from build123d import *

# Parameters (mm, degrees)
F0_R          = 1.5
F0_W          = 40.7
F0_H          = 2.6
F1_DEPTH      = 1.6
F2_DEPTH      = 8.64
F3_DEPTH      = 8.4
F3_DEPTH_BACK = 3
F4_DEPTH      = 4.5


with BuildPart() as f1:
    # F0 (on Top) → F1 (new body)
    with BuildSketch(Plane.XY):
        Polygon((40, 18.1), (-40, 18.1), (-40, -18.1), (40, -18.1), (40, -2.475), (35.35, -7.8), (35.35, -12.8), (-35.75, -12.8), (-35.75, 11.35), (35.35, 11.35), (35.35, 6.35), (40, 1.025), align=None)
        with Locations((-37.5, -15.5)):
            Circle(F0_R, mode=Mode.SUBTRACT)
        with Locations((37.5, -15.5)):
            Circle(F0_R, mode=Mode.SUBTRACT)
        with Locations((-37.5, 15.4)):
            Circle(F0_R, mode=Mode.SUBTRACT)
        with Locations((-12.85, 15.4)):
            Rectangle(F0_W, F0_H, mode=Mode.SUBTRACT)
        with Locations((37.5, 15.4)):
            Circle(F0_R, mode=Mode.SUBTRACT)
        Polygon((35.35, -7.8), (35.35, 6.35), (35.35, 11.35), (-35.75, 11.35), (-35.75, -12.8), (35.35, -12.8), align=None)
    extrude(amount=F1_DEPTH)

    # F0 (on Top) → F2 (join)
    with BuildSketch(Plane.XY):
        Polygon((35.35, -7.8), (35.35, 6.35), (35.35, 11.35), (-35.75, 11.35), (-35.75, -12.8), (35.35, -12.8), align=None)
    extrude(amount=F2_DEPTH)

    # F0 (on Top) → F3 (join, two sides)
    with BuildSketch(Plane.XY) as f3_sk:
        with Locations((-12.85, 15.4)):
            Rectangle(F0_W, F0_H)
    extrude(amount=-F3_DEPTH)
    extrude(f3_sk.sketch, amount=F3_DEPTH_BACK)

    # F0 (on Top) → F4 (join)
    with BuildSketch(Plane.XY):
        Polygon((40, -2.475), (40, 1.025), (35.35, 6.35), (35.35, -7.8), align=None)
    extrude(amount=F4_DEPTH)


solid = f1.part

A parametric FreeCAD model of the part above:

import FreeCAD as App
import Part
import Sketcher

V = App.Vector
Q = App.Units.Quantity

doc = App.newDocument("Part")
body = doc.addObject("PartDesign::Body", "Body")

# Sketch on XY plane
sketch1 = body.newObject("Sketcher::SketchObject", "Sketch")
sketch1.AttachmentSupport = (doc.getObject("XY_Plane"), [""])
sketch1.MapMode = "FlatFace"
sketch1.addGeometry(Part.LineSegment(V(40, 18.1, 0), V(-40, 18.1, 0)), False)
sketch1.addGeometry(Part.LineSegment(V(-40, 18.1, 0), V(-40, -18.1, 0)), False)
sketch1.addGeometry(Part.LineSegment(V(-40, -18.1, 0), V(40, -18.1, 0)), False)
sketch1.addGeometry(Part.LineSegment(V(40, -18.1, 0), V(40, -2.475, 0)), False)
sketch1.addGeometry(Part.LineSegment(V(40, -2.475, 0), V(35.35, -7.8, 0)), False)
sketch1.addGeometry(Part.LineSegment(V(35.35, -7.8, 0), V(35.35, 6.35, 0)), False)
sketch1.addGeometry(Part.LineSegment(V(35.35, 6.35, 0), V(40, 1.025, 0)), False)
sketch1.addGeometry(Part.LineSegment(V(40, 1.025, 0), V(40, 18.1, 0)), False)
sketch1.addGeometry(Part.Circle(V(-37.5, -15.5, 0), V(0, 0, 1), 1.5), False)
sketch1.addGeometry(Part.Circle(V(37.5, -15.5, 0), V(0, 0, 1), 1.5), False)
sketch1.addGeometry(Part.Circle(V(-37.5, 15.4, 0), V(0, 0, 1), 1.5), False)
sketch1.addGeometry(Part.LineSegment(V(7.5, 14.1, 0), V(-33.2, 14.1, 0)), False)
sketch1.addGeometry(Part.LineSegment(V(-33.2, 14.1, 0), V(-33.2, 16.7, 0)), False)
sketch1.addGeometry(Part.LineSegment(V(-33.2, 16.7, 0), V(7.5, 16.7, 0)), False)
sketch1.addGeometry(Part.LineSegment(V(7.5, 16.7, 0), V(7.5, 14.1, 0)), False)
sketch1.addGeometry(Part.Circle(V(37.5, 15.4, 0), V(0, 0, 1), 1.5), False)
sketch1.addConstraint(Sketcher.Constraint("Coincident", 0, 2, 1, 1))
sketch1.addConstraint(Sketcher.Constraint("Coincident", 1, 2, 2, 1))
sketch1.addConstraint(Sketcher.Constraint("Coincident", 2, 2, 3, 1))
sketch1.addConstraint(Sketcher.Constraint("Coincident", 3, 2, 4, 1))
sketch1.addConstraint(Sketcher.Constraint("Coincident", 4, 2, 5, 1))
sketch1.addConstraint(Sketcher.Constraint("Coincident", 5, 2, 6, 1))
sketch1.addConstraint(Sketcher.Constraint("Coincident", 6, 2, 7, 1))
sketch1.addConstraint(Sketcher.Constraint("Coincident", 7, 2, 0, 1))
sketch1.addConstraint(Sketcher.Constraint("Coincident", 11, 2, 12, 1))
sketch1.addConstraint(Sketcher.Constraint("Coincident", 12, 2, 13, 1))
sketch1.addConstraint(Sketcher.Constraint("Coincident", 13, 2, 14, 1))
sketch1.addConstraint(Sketcher.Constraint("Coincident", 14, 2, 11, 1))
sketch1.addConstraint(Sketcher.Constraint("Horizontal", 0))
sketch1.addConstraint(Sketcher.Constraint("Vertical", 1))
sketch1.addConstraint(Sketcher.Constraint("Horizontal", 2))
sketch1.addConstraint(Sketcher.Constraint("Vertical", 3))
sketch1.addConstraint(Sketcher.Constraint("Vertical", 5))
sketch1.addConstraint(Sketcher.Constraint("Vertical", 7))
sketch1.addConstraint(Sketcher.Constraint("Horizontal", 11))
sketch1.addConstraint(Sketcher.Constraint("Vertical", 12))
sketch1.addConstraint(Sketcher.Constraint("Horizontal", 13))
sketch1.addConstraint(Sketcher.Constraint("Vertical", 14))
sketch1.addConstraint(Sketcher.Constraint("Equal", 8, 9))
sketch1.addConstraint(Sketcher.Constraint("Equal", 9, 10))
sketch1.addConstraint(Sketcher.Constraint("Equal", 10, 15))
sketch1.addConstraint(Sketcher.Constraint("Symmetric", 0, 2, 2, 2, -1, 1))
sketch1.addConstraint(Sketcher.Constraint("Symmetric", 8, 3, 9, 3, -2))
sketch1.addConstraint(Sketcher.Constraint("Symmetric", 10, 3, 15, 3, -2))
sketch1.addConstraint(Sketcher.Constraint("Vertical", 8, 3, 10, 3))
sketch1.addConstraint(Sketcher.Constraint("Vertical", 3, 2, 6, 2))
sketch1.addConstraint(Sketcher.Constraint("Equal", 4, 6))
sketch1.addConstraint(Sketcher.Constraint("Diameter", 8, Q("3 mm")))
sketch1.addConstraint(Sketcher.Constraint("DistanceX", 0, 2, 0, 1, Q("80 mm")))
sketch1.addConstraint(Sketcher.Constraint("DistanceX", 11, 2, 11, 1, Q("40.7 mm")))
sketch1.addConstraint(Sketcher.Constraint("DistanceY", 1, 2, 1, 1, Q("36.2 mm")))
sketch1.addConstraint(Sketcher.Constraint("DistanceY", 12, 1, 12, 2, Q("2.6 mm")))
sketch1.addConstraint(Sketcher.Constraint("DistanceX", 8, 3, 9, 3, Q("75 mm")))
sketch1.addConstraint(Sketcher.Constraint("DistanceY", 11, 2, 0, 2, Q("4 mm")))
sketch1.addConstraint(Sketcher.Constraint("DistanceX", 13, 2, 15, 3, Q("30 mm")))
sketch1.addConstraint(Sketcher.Constraint("DistanceY", 5, 1, 5, 2, Q("14.15 mm")))
sketch1.addConstraint(Sketcher.Constraint("DistanceY", 8, 3, -1, 1, Q("15.5 mm")))
sketch1.addConstraint(Sketcher.Constraint("DistanceY", -1, 1, 10, 3, Q("15.4 mm")))
sketch1.addConstraint(Sketcher.Constraint("DistanceY", 4, 2, -1, 1, Q("7.8 mm")))
sketch1.addConstraint(Sketcher.Constraint("DistanceY", 3, 2, 6, 2, Q("3.5 mm")))
sketch1.addConstraint(Sketcher.Constraint("DistanceX", -1, 1, 4, 2, Q("35.35 mm")))
pad1 = body.newObject("PartDesign::Pad", "Pad")
pad1.Profile = sketch1
pad1.Length = 1.6

# Sketch on XY plane
sketch2 = body.newObject("Sketcher::SketchObject", "Sketch001")
sketch2.AttachmentSupport = (doc.getObject("XY_Plane"), [""])
sketch2.MapMode = "FlatFace"
sketch2.addGeometry(Part.LineSegment(V(35.35, 11.35, 0), V(-35.75, 11.35, 0)), False)
sketch2.addGeometry(Part.LineSegment(V(-35.75, 11.35, 0), V(-35.75, -12.8, 0)), False)
sketch2.addGeometry(Part.LineSegment(V(-35.75, -12.8, 0), V(35.35, -12.8, 0)), False)
sketch2.addGeometry(Part.LineSegment(V(35.35, -12.8, 0), V(35.35, 11.35, 0)), False)
sketch2.addConstraint(Sketcher.Constraint("Coincident", 0, 2, 1, 1))
sketch2.addConstraint(Sketcher.Constraint("Coincident", 1, 2, 2, 1))
sketch2.addConstraint(Sketcher.Constraint("Coincident", 2, 2, 3, 1))
sketch2.addConstraint(Sketcher.Constraint("Coincident", 3, 2, 0, 1))
sketch2.addConstraint(Sketcher.Constraint("Horizontal", 0))
sketch2.addConstraint(Sketcher.Constraint("Vertical", 1))
sketch2.addConstraint(Sketcher.Constraint("Horizontal", 2))
sketch2.addConstraint(Sketcher.Constraint("Vertical", 3))
sketch2.addConstraint(Sketcher.Constraint("DistanceX", 0, 2, 0, 1, Q("71.1 mm")))
sketch2.addConstraint(Sketcher.Constraint("DistanceY", 1, 2, 1, 1, Q("24.15 mm")))
sketch2.addConstraint(Sketcher.Constraint("DistanceY", 1, 2, -1, 1, Q("12.8 mm")))
sketch2.addConstraint(Sketcher.Constraint("DistanceX", 0, 2, -1, 1, Q("35.75 mm")))
pad2 = body.newObject("PartDesign::Pad", "Pad001")
pad2.Profile = sketch2
pad2.Length = 8.64

# Sketch on XY plane
sketch3 = body.newObject("Sketcher::SketchObject", "Sketch002")
sketch3.AttachmentSupport = (doc.getObject("XY_Plane"), [""])
sketch3.MapMode = "FlatFace"
sketch3.addGeometry(Part.LineSegment(V(-33.2, 16.7, 0), V(-33.2, 14.1, 0)), False)
sketch3.addGeometry(Part.LineSegment(V(-33.2, 14.1, 0), V(7.5, 14.1, 0)), False)
sketch3.addGeometry(Part.LineSegment(V(7.5, 14.1, 0), V(7.5, 16.7, 0)), False)
sketch3.addGeometry(Part.LineSegment(V(7.5, 16.7, 0), V(-33.2, 16.7, 0)), False)
sketch3.addConstraint(Sketcher.Constraint("Coincident", 0, 2, 1, 1))
sketch3.addConstraint(Sketcher.Constraint("Coincident", 1, 2, 2, 1))
sketch3.addConstraint(Sketcher.Constraint("Coincident", 2, 2, 3, 1))
sketch3.addConstraint(Sketcher.Constraint("Coincident", 3, 2, 0, 1))
sketch3.addConstraint(Sketcher.Constraint("Vertical", 0))
sketch3.addConstraint(Sketcher.Constraint("Horizontal", 1))
sketch3.addConstraint(Sketcher.Constraint("Vertical", 2))
sketch3.addConstraint(Sketcher.Constraint("Horizontal", 3))
sketch3.addConstraint(Sketcher.Constraint("DistanceX", 1, 1, 1, 2, Q("40.7 mm")))
sketch3.addConstraint(Sketcher.Constraint("DistanceY", 0, 2, 0, 1, Q("2.6 mm")))
sketch3.addConstraint(Sketcher.Constraint("DistanceX", 0, 2, -1, 1, Q("33.2 mm")))
sketch3.addConstraint(Sketcher.Constraint("DistanceY", -1, 1, 0, 2, Q("14.1 mm")))
pad3 = body.newObject("PartDesign::Pad", "Pad002")
pad3.Profile = sketch3
pad3.Type = "TwoLengths"
pad3.Length = 8.4
pad3.Length2 = 3
pad3.Reversed = True

# Sketch on XY plane
sketch4 = body.newObject("Sketcher::SketchObject", "Sketch003")
sketch4.AttachmentSupport = (doc.getObject("XY_Plane"), [""])
sketch4.MapMode = "FlatFace"
sketch4.addGeometry(Part.LineSegment(V(40, -2.475, 0), V(40, 1.025, 0)), False)
sketch4.addGeometry(Part.LineSegment(V(40, 1.025, 0), V(35.35, 6.35, 0)), False)
sketch4.addGeometry(Part.LineSegment(V(35.35, 6.35, 0), V(35.35, -7.8, 0)), False)
sketch4.addGeometry(Part.LineSegment(V(35.35, -7.8, 0), V(40, -2.475, 0)), False)
sketch4.addConstraint(Sketcher.Constraint("Coincident", 0, 2, 1, 1))
sketch4.addConstraint(Sketcher.Constraint("Coincident", 1, 2, 2, 1))
sketch4.addConstraint(Sketcher.Constraint("Coincident", 2, 2, 3, 1))
sketch4.addConstraint(Sketcher.Constraint("Coincident", 3, 2, 0, 1))
sketch4.addConstraint(Sketcher.Constraint("Vertical", 0))
sketch4.addConstraint(Sketcher.Constraint("Vertical", 2))
sketch4.addConstraint(Sketcher.Constraint("Equal", 1, 3))
sketch4.addConstraint(Sketcher.Constraint("DistanceY", 0, 1, 0, 2, Q("3.5 mm")))
sketch4.addConstraint(Sketcher.Constraint("DistanceX", -1, 1, 0, 2, Q("40 mm")))
sketch4.addConstraint(Sketcher.Constraint("DistanceY", 2, 2, 2, 1, Q("14.15 mm")))
sketch4.addConstraint(Sketcher.Constraint("DistanceY", 2, 2, -1, 1, Q("7.8 mm")))
sketch4.addConstraint(Sketcher.Constraint("DistanceX", -1, 1, 1, 2, Q("35.35 mm")))
pad4 = body.newObject("PartDesign::Pad", "Pad003")
pad4.Profile = sketch4
pad4.Length = 4.5

doc.recompute()
